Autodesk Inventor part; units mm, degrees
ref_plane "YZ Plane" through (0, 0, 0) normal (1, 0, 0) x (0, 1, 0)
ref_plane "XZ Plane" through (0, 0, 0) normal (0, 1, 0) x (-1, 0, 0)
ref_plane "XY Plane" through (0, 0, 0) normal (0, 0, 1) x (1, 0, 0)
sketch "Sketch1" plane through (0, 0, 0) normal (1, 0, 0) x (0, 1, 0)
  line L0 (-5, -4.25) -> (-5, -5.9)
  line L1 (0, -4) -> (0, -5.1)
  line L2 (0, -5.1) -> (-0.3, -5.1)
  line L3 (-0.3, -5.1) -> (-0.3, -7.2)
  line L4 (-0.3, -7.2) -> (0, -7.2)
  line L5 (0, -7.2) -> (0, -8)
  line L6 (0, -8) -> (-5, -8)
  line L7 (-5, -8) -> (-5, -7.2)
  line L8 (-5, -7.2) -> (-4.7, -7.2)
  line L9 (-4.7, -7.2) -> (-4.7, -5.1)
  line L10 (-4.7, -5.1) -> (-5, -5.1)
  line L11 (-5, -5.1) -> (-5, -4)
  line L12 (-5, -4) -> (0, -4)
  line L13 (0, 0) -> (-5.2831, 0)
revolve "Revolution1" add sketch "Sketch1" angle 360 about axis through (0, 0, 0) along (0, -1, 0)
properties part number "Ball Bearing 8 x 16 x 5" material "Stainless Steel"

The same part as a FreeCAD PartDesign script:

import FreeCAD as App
import Part
import Sketcher


def add_polygon(sketch, points):
    """Adds a closed chain of lines whose ends are joined by coincident constraints."""
    first, n = sketch.GeometryCount, len(points)
    for a, b in zip(points, points[1:] + points[:1]):
        sketch.addGeometry(Part.LineSegment(App.Vector(*a, 0), App.Vector(*b, 0)), False)
    for i in range(n):
        sketch.addConstraint(Sketcher.Constraint("Coincident", first + i, 2, first + (i + 1) % n, 1))

doc = App.newDocument("Part")
body = doc.addObject("PartDesign::Body", "Body")

sketch1 = body.newObject("Sketcher::SketchObject", "Sketch")
sketch1.AttachmentSupport = (doc.getObject("YZ_Plane"), [""])
sketch1.MapMode = "FlatFace"
add_polygon(sketch1, [(-5, -4), (-5, -5.1), (-4.7, -5.1), (-4.7, -7.2), (-5, -7.2), (-5, -8), (0, -8), (0, -7.2), (-0.3, -7.2), (-0.3, -5.1), (0, -5.1), (0, -4)])
sketch1.addConstraint([
    Sketcher.Constraint("Vertical", 0),
    Sketcher.Constraint("Horizontal", 1),
    Sketcher.Constraint("Vertical", 2),
    Sketcher.Constraint("Horizontal", 3),
    Sketcher.Constraint("Vertical", 4),
    Sketcher.Constraint("Horizontal", 5),
    Sketcher.Constraint("Vertical", 6),
    Sketcher.Constraint("Horizontal", 7),
    Sketcher.Constraint("Vertical", 8),
    Sketcher.Constraint("Horizontal", 9),
    Sketcher.Constraint("Vertical", 10),
    Sketcher.Constraint("Horizontal", 11),
    Sketcher.Constraint("PointOnObject", 5, 2, -2),
    Sketcher.Constraint("PointOnObject", 9, 2, -2),
    Sketcher.Constraint("Horizontal", 3, 2, 6, 2),
    Sketcher.Constraint("Horizontal", 1, 2, 8, 2),
    Sketcher.Constraint("Vertical", 0, 2, 3, 2),
    Sketcher.Constraint("Equal", 3, 7),
    Sketcher.Constraint("DistanceX", 5, 1, 5, 2, 5.0),
    Sketcher.Constraint("DistanceX", 1, 1, 1, 2, 0.3),
    Sketcher.Constraint("DistanceY", 0, 2, 0, 1, 1.1),
    Sketcher.Constraint("DistanceY", 2, 2, 2, 1, 2.1),
    Sketcher.Constraint("DistanceY", 4, 2, 4, 1, 0.8),
    Sketcher.Constraint("DistanceY", 4, 2, -1, 1, 8.0),
])
revolution = body.newObject("PartDesign::Revolution", "Revolution")
revolution.Profile = sketch1
revolution.ReferenceAxis = (sketch1, ["H_Axis"])
revolution.Angle = 360

doc.recompute()
